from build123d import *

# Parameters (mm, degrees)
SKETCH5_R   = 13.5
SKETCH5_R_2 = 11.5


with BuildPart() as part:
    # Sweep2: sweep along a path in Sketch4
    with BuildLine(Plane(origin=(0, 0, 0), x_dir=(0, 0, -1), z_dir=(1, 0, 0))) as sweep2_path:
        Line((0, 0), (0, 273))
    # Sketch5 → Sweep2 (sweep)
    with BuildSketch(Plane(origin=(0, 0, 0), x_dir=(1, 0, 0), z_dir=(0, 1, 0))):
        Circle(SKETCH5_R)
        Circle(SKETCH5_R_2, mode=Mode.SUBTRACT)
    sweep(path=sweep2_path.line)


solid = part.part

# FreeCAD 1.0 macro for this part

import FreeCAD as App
import Part
import Sketcher

doc = App.newDocument("Part")
body = doc.addObject("PartDesign::Body", "Body")

sketch1 = body.newObject("Sketcher::SketchObject", "Sketch")
sketch1.AttachmentSupport = (doc.getObject("XZ_Plane"), [""])
sketch1.MapMode = "FlatFace"
sketch1.addGeometry(Part.Circle(App.Vector(0, 0, 0), App.Vector(0, 0, 1), 14), False)
sketch1.addGeometry(Part.Circle(App.Vector(0, 0, 0), App.Vector(0, 0, 1), 12), False)
sketch1.addConstraint(Sketcher.Constraint("Coincident", 0, 3, -1, 1))
sketch1.addConstraint(Sketcher.Constraint("Coincident", 1, 3, -1, 1))
sketch1.addConstraint(Sketcher.Constraint("Diameter", 0, 27.0))
sketch1.addConstraint(Sketcher.Constraint("Diameter", 1, 23.0))

sketch2 = body.newObject("Sketcher::SketchObject", "Sketch001")
sketch2.AttachmentSupport = (doc.getObject("XY_Plane"), [""])
sketch2.MapMode = "FlatFace"
sketch2.addGeometry(Part.LineSegment(App.Vector(0, 0, 0), App.Vector(0, 273, 0)), False)
sketch2.addConstraint(Sketcher.Constraint("Vertical", 0))
sketch2.addConstraint(Sketcher.Constraint("Coincident", 0, 1, -1, 1))
sketch2.addConstraint(Sketcher.Constraint("DistanceY", 0, 1, 0, 2, 273.0))
doc.recompute()

additivepipe = body.newObject("PartDesign::AdditivePipe", "AdditivePipe")
additivepipe.Profile = sketch1
additivepipe.Spine = (sketch2, ["Edge1"])

doc.recompute()
